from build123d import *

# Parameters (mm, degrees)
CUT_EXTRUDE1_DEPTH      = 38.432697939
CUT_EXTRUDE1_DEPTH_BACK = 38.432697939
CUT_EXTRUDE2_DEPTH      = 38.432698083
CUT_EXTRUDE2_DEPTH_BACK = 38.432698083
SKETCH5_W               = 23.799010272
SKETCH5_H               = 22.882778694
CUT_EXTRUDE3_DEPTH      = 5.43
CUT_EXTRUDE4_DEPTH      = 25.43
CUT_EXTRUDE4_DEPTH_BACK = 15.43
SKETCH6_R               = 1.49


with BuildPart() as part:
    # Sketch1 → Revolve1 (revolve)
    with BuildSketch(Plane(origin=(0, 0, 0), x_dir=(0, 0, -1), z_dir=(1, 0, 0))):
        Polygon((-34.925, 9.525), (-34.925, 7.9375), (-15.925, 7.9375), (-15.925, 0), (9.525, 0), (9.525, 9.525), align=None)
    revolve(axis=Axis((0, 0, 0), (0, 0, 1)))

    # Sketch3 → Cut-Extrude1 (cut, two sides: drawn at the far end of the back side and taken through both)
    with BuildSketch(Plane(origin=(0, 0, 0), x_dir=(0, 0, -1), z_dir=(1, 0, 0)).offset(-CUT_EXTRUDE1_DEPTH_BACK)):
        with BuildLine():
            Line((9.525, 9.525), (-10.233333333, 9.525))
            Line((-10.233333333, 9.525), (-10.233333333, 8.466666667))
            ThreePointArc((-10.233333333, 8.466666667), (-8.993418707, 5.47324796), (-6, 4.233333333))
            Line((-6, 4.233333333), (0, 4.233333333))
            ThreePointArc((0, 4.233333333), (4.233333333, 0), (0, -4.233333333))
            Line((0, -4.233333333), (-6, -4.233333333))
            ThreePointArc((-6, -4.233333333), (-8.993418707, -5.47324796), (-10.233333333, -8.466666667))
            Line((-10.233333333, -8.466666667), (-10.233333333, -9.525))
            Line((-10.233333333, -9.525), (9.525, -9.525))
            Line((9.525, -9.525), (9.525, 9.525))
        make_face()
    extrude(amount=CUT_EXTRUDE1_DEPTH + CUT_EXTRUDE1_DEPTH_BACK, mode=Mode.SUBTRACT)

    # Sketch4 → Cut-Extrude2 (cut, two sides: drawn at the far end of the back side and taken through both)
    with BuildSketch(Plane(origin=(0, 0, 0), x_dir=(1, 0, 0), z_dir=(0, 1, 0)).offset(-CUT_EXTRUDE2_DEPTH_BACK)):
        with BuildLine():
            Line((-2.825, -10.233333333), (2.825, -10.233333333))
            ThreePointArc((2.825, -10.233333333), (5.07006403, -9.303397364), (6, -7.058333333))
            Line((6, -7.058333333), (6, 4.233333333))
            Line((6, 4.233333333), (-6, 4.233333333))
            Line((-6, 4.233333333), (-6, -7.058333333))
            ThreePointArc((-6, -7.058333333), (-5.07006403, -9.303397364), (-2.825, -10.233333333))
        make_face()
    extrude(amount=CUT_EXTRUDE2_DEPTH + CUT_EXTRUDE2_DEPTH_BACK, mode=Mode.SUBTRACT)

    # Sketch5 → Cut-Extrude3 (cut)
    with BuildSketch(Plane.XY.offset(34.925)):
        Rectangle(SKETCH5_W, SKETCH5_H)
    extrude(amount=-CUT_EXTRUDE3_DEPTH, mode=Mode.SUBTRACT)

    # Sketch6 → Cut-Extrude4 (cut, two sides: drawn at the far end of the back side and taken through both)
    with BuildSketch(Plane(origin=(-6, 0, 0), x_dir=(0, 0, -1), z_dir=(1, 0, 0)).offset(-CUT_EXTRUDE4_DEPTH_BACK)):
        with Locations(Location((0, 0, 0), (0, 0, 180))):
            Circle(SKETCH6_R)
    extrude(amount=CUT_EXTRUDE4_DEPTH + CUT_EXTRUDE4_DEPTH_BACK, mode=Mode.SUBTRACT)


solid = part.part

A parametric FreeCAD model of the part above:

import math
import FreeCAD as App
import Part
import Sketcher
from FreeCAD import Vector
Q = App.Units.Quantity

doc = App.newDocument("Part")
body = doc.addObject("PartDesign::Body", "Body")

sketch1 = body.newObject("Sketcher::SketchObject", "Sketch")
sketch1.AttachmentSupport = (doc.getObject("YZ_Plane"), [""])
sketch1.MapMode = "FlatFace"
sketch1.addGeometry([
    Part.LineSegment(Vector(9.5, 34.9, 0), Vector(7.9, 34.9, 0)),
    Part.LineSegment(Vector(7.9, 34.9, 0), Vector(7.9, 15.9, 0)),
    Part.LineSegment(Vector(7.9, 15.9, 0), Vector(0, 15.9, 0)),
    Part.LineSegment(Vector(0, 15.9, 0), Vector(0, -9.5, 0)),
    Part.LineSegment(Vector(0, -9.5, 0), Vector(9.5, -9.5, 0)),
    Part.LineSegment(Vector(9.5, -9.5, 0), Vector(9.5, 34.9, 0)),
], False)
sketch1.addConstraint([
    Sketcher.Constraint("Coincident", 0, 2, 1, 1),
    Sketcher.Constraint("Coincident", 1, 2, 2, 1),
    Sketcher.Constraint("Coincident", 2, 2, 3, 1),
    Sketcher.Constraint("Coincident", 3, 2, 4, 1),
    Sketcher.Constraint("Coincident", 4, 2, 5, 1),
    Sketcher.Constraint("Coincident", 5, 2, 0, 1),
    Sketcher.Constraint("Horizontal", 0),
    Sketcher.Constraint("Vertical", 1),
    Sketcher.Constraint("Horizontal", 2),
    Sketcher.Constraint("Vertical", 3),
    Sketcher.Constraint("Horizontal", 4),
    Sketcher.Constraint("Vertical", 5),
    Sketcher.Constraint("PointOnObject", 2, 2, -2),
    Sketcher.Constraint("DistanceY", 5, 1, 5, 2, Q("1.75 in")),
    Sketcher.Constraint("DistanceX", 0, 2, 0, 1, Q("0.0625 in")),
    Sketcher.Constraint("DistanceX", 2, 2, 2, 1, Q("0.3125 in")),
    Sketcher.Constraint("DistanceY", -1, 1, 0, 2, Q("1.375 in")),
    Sketcher.Constraint("DistanceY", 1, 2, 1, 1, Q("19 mm")),
])
revolution = body.newObject("PartDesign::Revolution", "Revolution")
revolution.Profile = sketch1
revolution.ReferenceAxis = (sketch1, ["V_Axis"])
revolution.Angle = 360

sketch2 = body.newObject("Sketcher::SketchObject", "Sketch001")
sketch2.AttachmentSupport = (doc.getObject("YZ_Plane"), [""])
sketch2.MapMode = "FlatFace"
sketch2.addGeometry([
    Part.LineSegment(Vector(9.5, -9.5, 0), Vector(9.5, 10.2, 0)),
    Part.LineSegment(Vector(9.5, 10.2, 0), Vector(8.5, 10.2, 0)),
    Part.ArcOfCircle(Part.Circle(Vector(8.5, 6, 0), Vector(0, 0, 1), 4.2), math.radians(90), math.radians(180)),
    Part.LineSegment(Vector(4.2, 6, 0), Vector(4.2, 0, 0)),
    Part.ArcOfCircle(Part.Circle(Vector(0, 0, 0), Vector(0, 0, 1), 4.2), math.radians(180), math.radians(360)),
    Part.LineSegment(Vector(-4.2, 0, 0), Vector(-4.2, 6, 0)),
    Part.ArcOfCircle(Part.Circle(Vector(-8.5, 6, 0), Vector(0, 0, 1), 4.2), math.radians(0), math.radians(90)),
    Part.LineSegment(Vector(-8.5, 10.2, 0), Vector(-9.5, 10.2, 0)),
    Part.LineSegment(Vector(-9.5, 10.2, 0), Vector(-9.5, -9.5, 0)),
    Part.LineSegment(Vector(-9.5, -9.5, 0), Vector(9.5, -9.5, 0)),
], False)
sketch2.addConstraint([
    Sketcher.Constraint("Coincident", 0, 2, 1, 1),
    Sketcher.Constraint("Tangent", 1, 2, 2, 1),
    Sketcher.Constraint("Tangent", 2, 2, 3, 1),
    Sketcher.Constraint("Tangent", 3, 2, 4, 2),
    Sketcher.Constraint("Tangent", 4, 1, 5, 1),
    Sketcher.Constraint("Tangent", 5, 2, 6, 1),
    Sketcher.Constraint("Tangent", 6, 2, 7, 1),
    Sketcher.Constraint("Coincident", 7, 2, 8, 1),
    Sketcher.Constraint("Coincident", 8, 2, 9, 1),
    Sketcher.Constraint("Coincident", 9, 2, 0, 1),
    Sketcher.Constraint("Vertical", 0),
    Sketcher.Constraint("Horizontal", 1),
    Sketcher.Constraint("Vertical", 3),
    Sketcher.Constraint("Vertical", 5),
    Sketcher.Constraint("Horizontal", 7),
    Sketcher.Constraint("Vertical", 8),
    Sketcher.Constraint("Horizontal", 9),
    Sketcher.Constraint("Coincident", 4, 3, -1, 1),
    Sketcher.Constraint("Equal", 2, 4),
    Sketcher.Constraint("Equal", 4, 6),
    Sketcher.Constraint("Symmetric", 0, 2, 7, 2, -2),
    Sketcher.Constraint("DistanceX", 9, 1, 9, 2, Q("0.75 in")),
    Sketcher.Constraint("DistanceX", 6, 3, 2, 2, Q("0.5 in")),
    Sketcher.Constraint("DistanceY", 8, 2, -1, 1, Q("0.375 in")),
    Sketcher.Constraint("DistanceY", 3, 2, 3, 1, Q("6 mm")),
])
pocket1 = body.newObject("PartDesign::Pocket", "Pocket")
pocket1.Profile = sketch2
pocket1.Type = "ThroughAll"
pocket1.Midplane = True

sketch3 = body.newObject("Sketcher::SketchObject", "Sketch002")
sketch3.AttachmentSupport = (doc.getObject("XZ_Plane"), [""])
sketch3.MapMode = "FlatFace"
sketch3.addGeometry([
    Part.LineSegment(Vector(-2.8, 10.2, 0), Vector(2.8, 10.2, 0)),
    Part.ArcOfCircle(Part.Circle(Vector(2.8, 7.1, 0), Vector(0, 0, 1), 3.2), math.radians(0), math.radians(90)),
    Part.LineSegment(Vector(6, 7.1, 0), Vector(6, -4.2, 0)),
    Part.LineSegment(Vector(6, -4.2, 0), Vector(-6, -4.2, 0)),
    Part.LineSegment(Vector(-6, -4.2, 0), Vector(-6, 7.1, 0)),
    Part.ArcOfCircle(Part.Circle(Vector(-2.8, 7.1, 0), Vector(0, 0, 1), 3.2), math.radians(90), math.radians(180)),
], False)
sketch3.addConstraint([
    Sketcher.Constraint("Tangent", 0, 2, 1, 2),
    Sketcher.Constraint("Tangent", 1, 1, 2, 1),
    Sketcher.Constraint("Coincident", 2, 2, 3, 1),
    Sketcher.Constraint("Coincident", 3, 2, 4, 1),
    Sketcher.Constraint("Tangent", 4, 2, 5, 2),
    Sketcher.Constraint("Tangent", 5, 1, 0, 1),
    Sketcher.Constraint("Horizontal", 0),
    Sketcher.Constraint("Vertical", 2),
    Sketcher.Constraint("Horizontal", 3),
    Sketcher.Constraint("Vertical", 4),
    Sketcher.Constraint("Equal", 1, 5),
    Sketcher.Constraint("Radius", 1, Q("0.125 in")),
    Sketcher.Constraint("DistanceX", 0, 1, 0, 2, Q("5.65 mm")),
    Sketcher.Constraint("DistanceX", -1, 1, 1, 3, Q("2.825 mm")),
    Sketcher.Constraint("DistanceY", 2, 2, 2, 1, Q("11.291667 mm")),
    Sketcher.Constraint("DistanceY", -1, 1, 1, 3, Q("7.058333 mm")),
])
pocket2 = body.newObject("PartDesign::Pocket", "Pocket001")
pocket2.Profile = sketch3
pocket2.Type = "ThroughAll"
pocket2.Midplane = True

sketch4 = body.newObject("Sketcher::SketchObject", "Sketch003")
sketch4.AttachmentSupport = (doc.getObject("XY_Plane"), [""])
sketch4.MapMode = "FlatFace"
sketch4.AttachmentOffset = App.Placement(Vector(0, 0, 1.375 * 25.4), App.Rotation())
sketch4.addGeometry([
    Part.LineSegment(Vector(-12, 11, 0), Vector(-12, -11, 0)),
    Part.LineSegment(Vector(-12, -11, 0), Vector(12, -11, 0)),
    Part.LineSegment(Vector(12, -11, 0), Vector(12, 11, 0)),
    Part.LineSegment(Vector(12, 11, 0), Vector(-12, 11, 0)),
], False)
sketch4.addConstraint([
    Sketcher.Constraint("Coincident", 0, 2, 1, 1),
    Sketcher.Constraint("Coincident", 1, 2, 2, 1),
    Sketcher.Constraint("Coincident", 2, 2, 3, 1),
    Sketcher.Constraint("Coincident", 3, 2, 0, 1),
    Sketcher.Constraint("Vertical", 0),
    Sketcher.Constraint("Horizontal", 1),
    Sketcher.Constraint("Vertical", 2),
    Sketcher.Constraint("Horizontal", 3),
    Sketcher.Constraint("Symmetric", 0, 2, 2, 2, -1, 1),
    Sketcher.Constraint("DistanceX", 1, 1, 1, 2, Q("23.79901 mm")),
    Sketcher.Constraint("DistanceY", 0, 2, 0, 1, Q("22.882779 mm")),
])
pocket3 = body.newObject("PartDesign::Pocket", "Pocket002")
pocket3.Profile = sketch4
pocket3.Length = 5.43

sketch5 = body.newObject("Sketcher::SketchObject", "Sketch004")
sketch5.AttachmentSupport = (doc.getObject("YZ_Plane"), [""])
sketch5.MapMode = "FlatFace"
sketch5.AttachmentOffset = App.Placement(Vector(0, 0, -6), App.Rotation())
sketch5.addGeometry(Part.Circle(Vector(0, 0, 0), Vector(0, 0, 1), 1.5), False)
sketch5.addConstraint([
    Sketcher.Constraint("Coincident", 0, 3, -1, 1),
    Sketcher.Constraint("Diameter", 0, Q("2.98 mm")),
])
pocket4 = body.newObject("PartDesign::Pocket", "Pocket003")
pocket4.Profile = sketch5
pocket4.Type = "ThroughAll"
pocket4.Midplane = True

doc.recompute()
